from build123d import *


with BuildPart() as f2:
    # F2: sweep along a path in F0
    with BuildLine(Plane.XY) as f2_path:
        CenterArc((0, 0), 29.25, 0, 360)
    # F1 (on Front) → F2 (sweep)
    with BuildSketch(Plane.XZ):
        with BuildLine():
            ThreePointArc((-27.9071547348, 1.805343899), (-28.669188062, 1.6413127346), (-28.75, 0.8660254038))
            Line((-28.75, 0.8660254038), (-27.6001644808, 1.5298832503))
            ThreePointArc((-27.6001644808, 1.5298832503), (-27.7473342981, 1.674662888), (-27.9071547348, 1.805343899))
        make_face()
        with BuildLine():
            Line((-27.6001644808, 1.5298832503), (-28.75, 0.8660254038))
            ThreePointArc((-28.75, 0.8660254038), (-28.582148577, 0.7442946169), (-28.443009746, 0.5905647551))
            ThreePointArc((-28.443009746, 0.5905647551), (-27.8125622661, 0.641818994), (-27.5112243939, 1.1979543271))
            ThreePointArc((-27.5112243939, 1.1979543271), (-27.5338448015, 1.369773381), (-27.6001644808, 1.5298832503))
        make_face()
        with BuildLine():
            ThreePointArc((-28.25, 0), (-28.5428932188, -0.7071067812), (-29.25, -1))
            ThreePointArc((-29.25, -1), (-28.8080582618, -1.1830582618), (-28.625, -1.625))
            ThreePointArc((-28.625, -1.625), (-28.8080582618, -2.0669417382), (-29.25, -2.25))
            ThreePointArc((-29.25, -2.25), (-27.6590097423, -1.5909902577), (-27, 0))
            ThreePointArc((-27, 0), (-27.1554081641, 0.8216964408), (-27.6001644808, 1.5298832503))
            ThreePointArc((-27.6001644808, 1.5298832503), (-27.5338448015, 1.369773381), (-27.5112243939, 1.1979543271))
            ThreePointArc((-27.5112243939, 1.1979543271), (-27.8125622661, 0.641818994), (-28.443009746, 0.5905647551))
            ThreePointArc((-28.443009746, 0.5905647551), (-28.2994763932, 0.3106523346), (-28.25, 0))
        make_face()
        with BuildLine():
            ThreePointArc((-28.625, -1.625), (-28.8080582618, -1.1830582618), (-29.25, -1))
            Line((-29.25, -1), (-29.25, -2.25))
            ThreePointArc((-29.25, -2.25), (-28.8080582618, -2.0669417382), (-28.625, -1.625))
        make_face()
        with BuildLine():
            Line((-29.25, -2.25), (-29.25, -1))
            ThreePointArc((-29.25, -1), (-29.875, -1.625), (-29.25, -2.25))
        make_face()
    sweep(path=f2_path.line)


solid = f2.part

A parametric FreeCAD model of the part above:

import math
import FreeCAD as App
import Part
import Sketcher

V = App.Vector

doc = App.newDocument("Part")
body = doc.addObject("PartDesign::Body", "Body")

sketch1 = doc.addObject("Sketcher::SketchObject", "Sketch")
body.addObject(sketch1)
sketch1.AttachmentSupport = (doc.XZ_Plane, [""])
sketch1.MapMode = "FlatFace"
sketch1.addGeometry([
    Part.ArcOfCircle(Part.Circle(V(-28.175082, 1.197954, 0), V(0, 0, 1), 0.663858), math.radians(66.197095), math.radians(210)),
    Part.ArcOfCircle(Part.Circle(V(-29.25, 0, 0), V(0, 0, 1), 1), math.radians(36.197095), math.radians(60)),
    Part.ArcOfCircle(Part.Circle(V(-29.25, 0, 0), V(0, 0, 1), 1), math.radians(0), math.radians(36.197095)),
    Part.ArcOfCircle(Part.Circle(V(-29.25, 0, 0), V(0, 0, 1), 1), math.radians(-90), math.radians(0)),
    Part.ArcOfCircle(Part.Circle(V(-29.25, -1.625, 0), V(0, 0, 1), 0.625), math.radians(90), math.radians(270)),
    Part.ArcOfCircle(Part.Circle(V(-29.25, 0, 0), V(0, 0, 1), 2.25), math.radians(-90), math.radians(0)),
    Part.ArcOfCircle(Part.Circle(V(-29.25, 0, 0), V(0, 0, 1), 2.25), math.radians(0), math.radians(42.839588)),
    Part.ArcOfCircle(Part.Circle(V(-29.25, 0, 0), V(0, 0, 1), 2.25), math.radians(42.839588), math.radians(53.357507)),
], False)
sketch1.addConstraint([
    Sketcher.Constraint("Coincident", 0, 2, 1, 2),
    Sketcher.Constraint("Tangent", 1, 1, 2, 2),
    Sketcher.Constraint("Tangent", 2, 1, 3, 2),
    Sketcher.Constraint("Tangent", 3, 1, 4, 1),
    Sketcher.Constraint("Tangent", 4, 2, 5, 1),
    Sketcher.Constraint("Tangent", 5, 2, 6, 1),
    Sketcher.Constraint("Tangent", 6, 2, 7, 1),
    Sketcher.Constraint("Coincident", 7, 2, 0, 1),
    Sketcher.Constraint("Coincident", 3, 3, 1, 3),
    Sketcher.Constraint("Coincident", 5, 3, 1, 3),
    Sketcher.Constraint("Coincident", 7, 3, 1, 3),
    Sketcher.Constraint("PointOnObject", 1, 3, -1),
    Sketcher.Constraint("PointOnObject", 2, 1, -1),
    Sketcher.Constraint("PointOnObject", 5, 2, -1),
    Sketcher.Constraint("Vertical", 3, 3, 4, 3),
    Sketcher.Constraint("Radius", 1, 1.0),
    Sketcher.Constraint("Radius", 5, 2.25),
    Sketcher.Constraint("DistanceX", 5, 2, -1, 1, 27.0),
    Sketcher.Constraint("DistanceX", 7, 3, 0, 2, 0.5),
    Sketcher.Constraint("Radius", 0, 0.663858),
    Sketcher.Constraint("DistanceX", 1, 1, -1, 1, 28.44301),
    Sketcher.Constraint("DistanceY", 0, 2, 0, 3, 0.331929),
    Sketcher.Constraint("DistanceY", 0, 3, 6, 2, 0.331929),
])

sketch2 = doc.addObject("Sketcher::SketchObject", "Sketch001")
body.addObject(sketch2)
sketch2.AttachmentSupport = (doc.XY_Plane, [""])
sketch2.MapMode = "FlatFace"
sketch2.addGeometry(Part.Circle(V(0, 0, 0), V(0, 0, 1), 29.25), False)
sketch2.addConstraint([
    Sketcher.Constraint("Coincident", 0, 3, -1, 1),
    Sketcher.Constraint("Diameter", 0, 58.5),
])
doc.recompute()

additivepipe = doc.addObject("PartDesign::AdditivePipe", "AdditivePipe")
body.addObject(additivepipe)
additivepipe.Profile = sketch1
additivepipe.Spine = (sketch2, ["Edge1"])

doc.recompute()
